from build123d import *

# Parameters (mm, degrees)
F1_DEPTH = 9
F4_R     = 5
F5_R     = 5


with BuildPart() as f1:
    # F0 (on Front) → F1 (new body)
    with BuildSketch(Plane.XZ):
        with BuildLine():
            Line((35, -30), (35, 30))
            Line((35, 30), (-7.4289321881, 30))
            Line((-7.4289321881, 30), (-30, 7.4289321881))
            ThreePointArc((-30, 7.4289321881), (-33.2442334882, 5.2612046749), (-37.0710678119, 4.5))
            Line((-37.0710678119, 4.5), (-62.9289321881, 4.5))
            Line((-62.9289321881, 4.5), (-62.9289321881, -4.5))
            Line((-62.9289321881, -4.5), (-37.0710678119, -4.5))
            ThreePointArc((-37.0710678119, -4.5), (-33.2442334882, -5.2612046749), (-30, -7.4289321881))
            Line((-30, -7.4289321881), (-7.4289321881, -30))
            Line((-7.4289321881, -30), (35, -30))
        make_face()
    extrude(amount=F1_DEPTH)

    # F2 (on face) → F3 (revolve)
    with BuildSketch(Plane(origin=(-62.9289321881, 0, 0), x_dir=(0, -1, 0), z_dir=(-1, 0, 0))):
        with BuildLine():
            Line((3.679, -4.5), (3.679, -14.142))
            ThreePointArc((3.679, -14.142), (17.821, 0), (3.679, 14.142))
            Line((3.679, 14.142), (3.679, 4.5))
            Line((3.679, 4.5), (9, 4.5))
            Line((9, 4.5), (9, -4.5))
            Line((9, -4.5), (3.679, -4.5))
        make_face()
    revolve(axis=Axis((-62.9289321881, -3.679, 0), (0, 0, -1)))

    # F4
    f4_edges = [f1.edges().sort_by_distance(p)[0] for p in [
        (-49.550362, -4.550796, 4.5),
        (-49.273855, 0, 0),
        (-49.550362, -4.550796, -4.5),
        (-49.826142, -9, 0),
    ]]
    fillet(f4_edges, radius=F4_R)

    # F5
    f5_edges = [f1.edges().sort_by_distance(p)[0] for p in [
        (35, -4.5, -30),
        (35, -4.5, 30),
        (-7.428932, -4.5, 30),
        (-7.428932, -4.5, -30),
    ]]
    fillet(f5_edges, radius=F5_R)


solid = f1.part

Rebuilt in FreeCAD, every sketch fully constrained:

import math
import FreeCAD as App
import Part
import Sketcher

V = App.Vector


def edges_at(feature, points):
    """Names of the edges that pass closest to the given points."""
    edges = feature.Shape.Edges
    near = lambda p: min(range(len(edges)), key=lambda i: edges[i].distToShape(Part.Vertex(*p))[0])
    return sorted({f"Edge{near(p) + 1}" for p in points})

doc = App.newDocument("Part")
body = doc.addObject("PartDesign::Body", "Body")

# Sketch on XZ plane
sketch1 = body.newObject("Sketcher::SketchObject", "Sketch")
sketch1.AttachmentSupport = (doc.getObject("XZ_Plane"), [""])
sketch1.MapMode = "FlatFace"
sketch1.addGeometry(Part.LineSegment(V(35, -30, 0), V(35, 30, 0)), False)
sketch1.addGeometry(Part.LineSegment(V(35, 30, 0), V(-7, 30, 0)), False)
sketch1.addGeometry(Part.LineSegment(V(-7, 30, 0), V(-30, 7, 0)), False)
sketch1.addGeometry(Part.ArcOfCircle(Part.Circle(V(-37, 14, 0), V(0, 0, 1), 10), math.radians(-90), math.radians(-45)), False)
sketch1.addGeometry(Part.LineSegment(V(-37, 4, 0), V(-63, 4, 0)), False)
sketch1.addGeometry(Part.LineSegment(V(-63, 4, 0), V(-63, -4, 0)), False)
sketch1.addGeometry(Part.LineSegment(V(-63, -4, 0), V(-37, -4, 0)), False)
sketch1.addGeometry(Part.ArcOfCircle(Part.Circle(V(-37, -14, 0), V(0, 0, 1), 10), math.radians(45), math.radians(90)), False)
sketch1.addGeometry(Part.LineSegment(V(-30, -7, 0), V(-7, -30, 0)), False)
sketch1.addGeometry(Part.LineSegment(V(-7, -30, 0), V(35, -30, 0)), False)
sketch1.addConstraint(Sketcher.Constraint("Coincident", 0, 2, 1, 1))
sketch1.addConstraint(Sketcher.Constraint("Coincident", 1, 2, 2, 1))
sketch1.addConstraint(Sketcher.Constraint("Tangent", 2, 2, 3, 2))
sketch1.addConstraint(Sketcher.Constraint("Tangent", 3, 1, 4, 1))
sketch1.addConstraint(Sketcher.Constraint("Coincident", 4, 2, 5, 1))
sketch1.addConstraint(Sketcher.Constraint("Coincident", 5, 2, 6, 1))
sketch1.addConstraint(Sketcher.Constraint("Tangent", 6, 2, 7, 2))
sketch1.addConstraint(Sketcher.Constraint("Tangent", 7, 1, 8, 1))
sketch1.addConstraint(Sketcher.Constraint("Coincident", 8, 2, 9, 1))
sketch1.addConstraint(Sketcher.Constraint("Coincident", 9, 2, 0, 1))
sketch1.addConstraint(Sketcher.Constraint("Vertical", 0))
sketch1.addConstraint(Sketcher.Constraint("Horizontal", 1))
sketch1.addConstraint(Sketcher.Constraint("Horizontal", 4))
sketch1.addConstraint(Sketcher.Constraint("Vertical", 5))
sketch1.addConstraint(Sketcher.Constraint("Horizontal", 6))
sketch1.addConstraint(Sketcher.Constraint("Horizontal", 9))
sketch1.addConstraint(Sketcher.Constraint("Equal", 3, 7))
sketch1.addConstraint(Sketcher.Constraint("Symmetric", 3, 3, 7, 3, -1))
sketch1.addConstraint(Sketcher.Constraint("Symmetric", 1, 2, 8, 2, -1))
sketch1.addConstraint(Sketcher.Constraint("Perpendicular", 2, 8))
sketch1.addConstraint(Sketcher.Constraint("Radius", 3, 10.0))
sketch1.addConstraint(Sketcher.Constraint("DistanceY", 0, 1, 0, 2, 60.0))
sketch1.addConstraint(Sketcher.Constraint("DistanceY", 5, 2, 5, 1, 9.0))
sketch1.addConstraint(Sketcher.Constraint("DistanceX", -1, 1, 0, 2, 35.0))
sketch1.addConstraint(Sketcher.Constraint("DistanceX", 2, 2, -1, 1, 30.0))
sketch1.addConstraint(Sketcher.Constraint("DistanceX", 4, 2, 1, 2, 55.5))
pad1 = body.newObject("PartDesign::Pad", "Pad")
pad1.Profile = sketch1
pad1.Length = 9

# Sketch on YZ plane
sketch2 = body.newObject("Sketcher::SketchObject", "Sketch001")
sketch2.AttachmentSupport = (doc.getObject("YZ_Plane"), [""])
sketch2.MapMode = "FlatFace"
sketch2.AttachmentOffset = App.Placement(V(0, 0, -62.928932), App.Rotation())
sketch2.addGeometry(Part.LineSegment(V(-4, -4, 0), V(-4, -14, 0)), False)
sketch2.addGeometry(Part.ArcOfCircle(Part.Circle(V(-4, 0, 0), V(0, 0, 1), 14), math.radians(90), math.radians(270)), False)
sketch2.addGeometry(Part.LineSegment(V(-4, 14, 0), V(-4, 4, 0)), False)
sketch2.addGeometry(Part.LineSegment(V(-4, 4, 0), V(-9, 4, 0)), False)
sketch2.addGeometry(Part.LineSegment(V(-9, 4, 0), V(-9, -4, 0)), False)
sketch2.addGeometry(Part.LineSegment(V(-9, -4, 0), V(-4, -4, 0)), False)
sketch2.addGeometry(Part.LineSegment(V(-4, 14, 0), V(-4, -14, 0)), True)  # axis
sketch2.addConstraint(Sketcher.Constraint("Coincident", 0, 2, 1, 2))
sketch2.addConstraint(Sketcher.Constraint("Coincident", 1, 1, 2, 1))
sketch2.addConstraint(Sketcher.Constraint("Coincident", 2, 2, 3, 1))
sketch2.addConstraint(Sketcher.Constraint("Coincident", 3, 2, 4, 1))
sketch2.addConstraint(Sketcher.Constraint("Coincident", 4, 2, 5, 1))
sketch2.addConstraint(Sketcher.Constraint("Coincident", 5, 2, 0, 1))
sketch2.addConstraint(Sketcher.Constraint("Vertical", 0))
sketch2.addConstraint(Sketcher.Constraint("Vertical", 2))
sketch2.addConstraint(Sketcher.Constraint("Horizontal", 3))
sketch2.addConstraint(Sketcher.Constraint("Vertical", 4))
sketch2.addConstraint(Sketcher.Constraint("Horizontal", 5))
sketch2.addConstraint(Sketcher.Constraint("Vertical", 6))
sketch2.addConstraint(Sketcher.Constraint("Coincident", 6, 1, 1, 1))
sketch2.addConstraint(Sketcher.Constraint("Coincident", 6, 2, 0, 2))
sketch2.addConstraint(Sketcher.Constraint("PointOnObject", 1, 3, -1))
sketch2.addConstraint(Sketcher.Constraint("Vertical", 1, 3, 0, 2))
sketch2.addConstraint(Sketcher.Constraint("Equal", 0, 2))
sketch2.addConstraint(Sketcher.Constraint("DistanceY", 4, 2, 4, 1, 9.0))
sketch2.addConstraint(Sketcher.Constraint("DistanceX", 3, 2, -1, 1, 9.0))
sketch2.addConstraint(Sketcher.Constraint("Radius", 1, 14.142))
sketch2.addConstraint(Sketcher.Constraint("DistanceX", 3, 2, 3, 1, 5.321))
revolution = body.newObject("PartDesign::Revolution", "Revolution")
revolution.Profile = sketch2
revolution.ReferenceAxis = (sketch2, ["Axis0"])
revolution.Angle = 360
doc.recompute()

fillet = body.newObject("PartDesign::Fillet", "Fillet")
fillet.Base = (revolution, edges_at(revolution, [
    (-49.55, -4.551, 4.5),
    (-49.274, 0, 0),
    (-49.55, -4.551, -4.5),
    (-49.826, -9, 0),
]))
fillet.Radius = 5
doc.recompute()

fillet2 = body.newObject("PartDesign::Fillet", "Fillet001")
fillet2.Base = (fillet, edges_at(fillet, [
    (35, -4.5, -30),
    (35, -4.5, 30),
    (-7.429, -4.5, 30),
    (-7.429, -4.5, -30),
]))
fillet2.Radius = 5

doc.recompute()
